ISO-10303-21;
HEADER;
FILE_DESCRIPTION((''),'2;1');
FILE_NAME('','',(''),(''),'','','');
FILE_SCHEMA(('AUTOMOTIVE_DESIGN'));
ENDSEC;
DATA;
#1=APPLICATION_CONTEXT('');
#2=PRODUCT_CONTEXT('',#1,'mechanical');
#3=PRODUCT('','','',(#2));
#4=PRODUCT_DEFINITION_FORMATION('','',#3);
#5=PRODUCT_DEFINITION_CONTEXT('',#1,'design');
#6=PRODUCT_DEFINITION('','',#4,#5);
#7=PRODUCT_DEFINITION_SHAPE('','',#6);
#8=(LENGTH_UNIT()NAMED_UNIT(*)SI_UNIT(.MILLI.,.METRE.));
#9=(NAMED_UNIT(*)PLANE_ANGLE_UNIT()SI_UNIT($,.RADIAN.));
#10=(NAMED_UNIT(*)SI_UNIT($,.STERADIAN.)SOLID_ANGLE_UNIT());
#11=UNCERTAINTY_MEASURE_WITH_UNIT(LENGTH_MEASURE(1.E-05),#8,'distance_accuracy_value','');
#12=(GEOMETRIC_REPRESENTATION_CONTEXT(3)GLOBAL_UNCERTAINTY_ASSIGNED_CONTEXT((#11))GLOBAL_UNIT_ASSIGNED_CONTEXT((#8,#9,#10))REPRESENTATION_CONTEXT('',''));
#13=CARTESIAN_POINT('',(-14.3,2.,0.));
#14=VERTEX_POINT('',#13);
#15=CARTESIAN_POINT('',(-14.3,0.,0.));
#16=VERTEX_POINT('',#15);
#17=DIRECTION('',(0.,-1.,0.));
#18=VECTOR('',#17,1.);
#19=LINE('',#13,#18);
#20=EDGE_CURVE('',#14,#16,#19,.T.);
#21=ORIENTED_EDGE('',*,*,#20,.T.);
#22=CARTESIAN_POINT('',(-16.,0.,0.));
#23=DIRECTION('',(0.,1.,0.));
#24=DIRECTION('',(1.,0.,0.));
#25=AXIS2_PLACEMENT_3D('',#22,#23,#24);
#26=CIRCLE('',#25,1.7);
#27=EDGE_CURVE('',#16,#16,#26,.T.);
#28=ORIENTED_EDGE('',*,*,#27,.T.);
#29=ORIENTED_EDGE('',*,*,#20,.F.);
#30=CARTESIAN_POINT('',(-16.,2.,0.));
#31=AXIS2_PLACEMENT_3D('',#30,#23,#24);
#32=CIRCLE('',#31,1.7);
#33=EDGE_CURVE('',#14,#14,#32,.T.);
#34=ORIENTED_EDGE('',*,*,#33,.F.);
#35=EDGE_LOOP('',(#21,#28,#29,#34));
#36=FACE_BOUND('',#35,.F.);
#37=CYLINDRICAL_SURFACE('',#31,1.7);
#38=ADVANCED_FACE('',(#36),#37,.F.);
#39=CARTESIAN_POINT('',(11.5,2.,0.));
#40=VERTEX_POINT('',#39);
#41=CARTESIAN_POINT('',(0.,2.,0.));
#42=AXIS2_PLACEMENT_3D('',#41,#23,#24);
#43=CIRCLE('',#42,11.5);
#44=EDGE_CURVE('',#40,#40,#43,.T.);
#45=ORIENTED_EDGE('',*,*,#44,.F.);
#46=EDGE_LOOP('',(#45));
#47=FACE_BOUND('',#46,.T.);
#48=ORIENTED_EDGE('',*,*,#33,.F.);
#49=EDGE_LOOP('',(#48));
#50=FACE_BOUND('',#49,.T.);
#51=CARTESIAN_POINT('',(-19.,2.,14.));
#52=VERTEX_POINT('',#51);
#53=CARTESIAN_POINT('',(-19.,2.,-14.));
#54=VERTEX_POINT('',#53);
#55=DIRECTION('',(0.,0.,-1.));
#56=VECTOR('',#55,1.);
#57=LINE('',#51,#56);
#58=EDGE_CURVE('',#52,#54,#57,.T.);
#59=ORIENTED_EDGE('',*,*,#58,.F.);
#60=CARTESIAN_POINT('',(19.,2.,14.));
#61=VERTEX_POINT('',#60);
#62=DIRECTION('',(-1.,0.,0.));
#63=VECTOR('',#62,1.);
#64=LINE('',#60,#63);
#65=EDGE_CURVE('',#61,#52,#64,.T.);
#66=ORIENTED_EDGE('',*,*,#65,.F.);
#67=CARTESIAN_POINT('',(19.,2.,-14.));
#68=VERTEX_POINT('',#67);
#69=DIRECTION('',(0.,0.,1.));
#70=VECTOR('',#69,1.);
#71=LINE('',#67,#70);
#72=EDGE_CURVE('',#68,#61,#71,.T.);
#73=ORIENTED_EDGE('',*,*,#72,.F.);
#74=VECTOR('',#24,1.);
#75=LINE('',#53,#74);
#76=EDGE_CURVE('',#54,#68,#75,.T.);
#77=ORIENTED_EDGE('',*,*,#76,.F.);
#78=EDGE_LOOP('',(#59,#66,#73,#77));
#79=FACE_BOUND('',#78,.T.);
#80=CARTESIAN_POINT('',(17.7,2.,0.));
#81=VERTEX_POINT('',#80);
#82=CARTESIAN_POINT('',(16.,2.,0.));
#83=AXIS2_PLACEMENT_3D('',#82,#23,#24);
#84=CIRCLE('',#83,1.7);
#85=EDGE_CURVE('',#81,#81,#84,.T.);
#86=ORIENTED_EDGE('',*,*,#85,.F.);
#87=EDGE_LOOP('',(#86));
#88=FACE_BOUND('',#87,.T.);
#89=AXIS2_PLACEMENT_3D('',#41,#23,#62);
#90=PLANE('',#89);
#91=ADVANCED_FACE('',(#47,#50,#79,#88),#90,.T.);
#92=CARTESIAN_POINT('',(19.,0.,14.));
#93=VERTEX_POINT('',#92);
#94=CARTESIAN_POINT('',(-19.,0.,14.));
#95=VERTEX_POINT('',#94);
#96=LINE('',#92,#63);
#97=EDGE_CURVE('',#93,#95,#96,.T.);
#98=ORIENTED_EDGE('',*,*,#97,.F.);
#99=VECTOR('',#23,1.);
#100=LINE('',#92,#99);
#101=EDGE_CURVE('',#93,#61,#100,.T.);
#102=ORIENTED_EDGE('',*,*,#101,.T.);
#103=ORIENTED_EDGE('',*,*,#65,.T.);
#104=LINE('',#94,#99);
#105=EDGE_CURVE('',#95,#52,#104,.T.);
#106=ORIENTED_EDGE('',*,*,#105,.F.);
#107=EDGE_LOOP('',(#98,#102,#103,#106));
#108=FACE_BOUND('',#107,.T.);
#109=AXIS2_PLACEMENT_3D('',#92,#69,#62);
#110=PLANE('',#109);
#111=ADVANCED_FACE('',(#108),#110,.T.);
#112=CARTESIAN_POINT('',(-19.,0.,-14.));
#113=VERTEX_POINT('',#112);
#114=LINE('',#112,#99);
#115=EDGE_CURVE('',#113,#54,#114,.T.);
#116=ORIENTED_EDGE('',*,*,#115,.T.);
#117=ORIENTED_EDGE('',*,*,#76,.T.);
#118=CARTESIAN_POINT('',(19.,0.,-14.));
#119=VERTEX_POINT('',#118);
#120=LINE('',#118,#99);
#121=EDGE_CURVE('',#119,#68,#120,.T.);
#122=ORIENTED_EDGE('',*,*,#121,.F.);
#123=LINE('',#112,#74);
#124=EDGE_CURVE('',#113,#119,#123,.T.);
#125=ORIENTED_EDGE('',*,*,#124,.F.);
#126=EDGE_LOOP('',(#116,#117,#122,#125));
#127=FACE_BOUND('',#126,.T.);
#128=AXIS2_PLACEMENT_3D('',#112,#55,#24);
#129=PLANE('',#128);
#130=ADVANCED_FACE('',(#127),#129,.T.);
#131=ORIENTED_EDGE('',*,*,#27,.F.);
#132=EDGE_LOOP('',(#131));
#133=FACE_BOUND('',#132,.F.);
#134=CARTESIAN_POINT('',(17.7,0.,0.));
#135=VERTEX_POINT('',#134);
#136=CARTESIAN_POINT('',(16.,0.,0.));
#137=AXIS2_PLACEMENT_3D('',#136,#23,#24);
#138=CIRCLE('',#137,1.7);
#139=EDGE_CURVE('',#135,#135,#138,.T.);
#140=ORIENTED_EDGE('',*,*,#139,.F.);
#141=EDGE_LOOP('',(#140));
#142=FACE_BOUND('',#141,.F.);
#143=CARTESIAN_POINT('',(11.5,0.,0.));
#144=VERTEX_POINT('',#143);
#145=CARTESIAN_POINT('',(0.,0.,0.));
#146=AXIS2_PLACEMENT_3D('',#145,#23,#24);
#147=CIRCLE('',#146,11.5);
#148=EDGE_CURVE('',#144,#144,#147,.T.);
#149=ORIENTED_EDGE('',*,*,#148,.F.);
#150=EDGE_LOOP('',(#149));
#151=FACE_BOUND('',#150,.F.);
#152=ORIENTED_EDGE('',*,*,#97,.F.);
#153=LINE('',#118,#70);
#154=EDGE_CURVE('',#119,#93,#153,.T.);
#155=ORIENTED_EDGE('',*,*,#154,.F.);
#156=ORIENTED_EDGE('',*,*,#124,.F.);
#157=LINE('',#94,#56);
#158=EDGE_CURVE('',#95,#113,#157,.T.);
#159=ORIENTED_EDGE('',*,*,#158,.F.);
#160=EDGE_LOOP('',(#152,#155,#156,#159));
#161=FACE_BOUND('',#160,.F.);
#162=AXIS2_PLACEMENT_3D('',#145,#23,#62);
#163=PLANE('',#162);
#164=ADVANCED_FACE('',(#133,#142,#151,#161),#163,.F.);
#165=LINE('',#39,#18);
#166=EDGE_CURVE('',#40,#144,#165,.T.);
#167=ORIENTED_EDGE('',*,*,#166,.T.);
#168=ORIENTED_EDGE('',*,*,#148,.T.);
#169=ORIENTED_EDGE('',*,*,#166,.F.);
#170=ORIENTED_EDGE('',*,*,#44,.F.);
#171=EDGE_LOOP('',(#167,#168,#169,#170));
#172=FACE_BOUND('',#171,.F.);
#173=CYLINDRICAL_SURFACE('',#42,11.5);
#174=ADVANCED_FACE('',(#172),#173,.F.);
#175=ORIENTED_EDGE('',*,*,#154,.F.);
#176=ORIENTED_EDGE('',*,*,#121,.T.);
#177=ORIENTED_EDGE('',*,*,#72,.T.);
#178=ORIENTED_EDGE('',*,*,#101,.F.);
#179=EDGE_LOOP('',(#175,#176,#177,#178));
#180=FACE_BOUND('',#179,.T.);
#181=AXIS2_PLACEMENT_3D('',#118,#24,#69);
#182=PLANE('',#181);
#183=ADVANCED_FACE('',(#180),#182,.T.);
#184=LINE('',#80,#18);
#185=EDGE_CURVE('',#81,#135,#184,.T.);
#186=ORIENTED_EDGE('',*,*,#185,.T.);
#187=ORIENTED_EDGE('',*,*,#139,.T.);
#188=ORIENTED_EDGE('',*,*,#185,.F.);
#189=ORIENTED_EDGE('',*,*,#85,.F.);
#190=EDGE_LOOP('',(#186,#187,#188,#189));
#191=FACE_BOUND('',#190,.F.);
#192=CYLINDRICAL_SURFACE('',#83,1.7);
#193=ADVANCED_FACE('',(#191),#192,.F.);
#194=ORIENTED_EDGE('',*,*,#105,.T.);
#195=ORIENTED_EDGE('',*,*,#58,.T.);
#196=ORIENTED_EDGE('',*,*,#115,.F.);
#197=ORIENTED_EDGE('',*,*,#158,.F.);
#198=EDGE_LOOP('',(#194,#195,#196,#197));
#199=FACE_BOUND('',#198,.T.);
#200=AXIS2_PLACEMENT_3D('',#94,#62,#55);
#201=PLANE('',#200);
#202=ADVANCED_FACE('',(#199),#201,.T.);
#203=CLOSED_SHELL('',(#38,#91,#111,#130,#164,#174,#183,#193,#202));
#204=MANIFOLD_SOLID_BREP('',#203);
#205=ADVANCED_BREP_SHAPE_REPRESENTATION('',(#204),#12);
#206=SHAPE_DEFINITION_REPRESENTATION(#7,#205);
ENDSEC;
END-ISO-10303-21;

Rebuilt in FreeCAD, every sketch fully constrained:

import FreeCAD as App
import Part
import Sketcher
Q = App.Units.Quantity


def add_polygon(sketch, points):
    """Adds a closed chain of lines whose ends are joined by coincident constraints."""
    first, n = sketch.GeometryCount, len(points)
    for a, b in zip(points, points[1:] + points[:1]):
        sketch.addGeometry(Part.LineSegment(App.Vector(*a, 0), App.Vector(*b, 0)), False)
    for i in range(n):
        sketch.addConstraint(Sketcher.Constraint("Coincident", first + i, 2, first + (i + 1) % n, 1))

doc = App.newDocument("Part")
body = doc.addObject("PartDesign::Body", "Body")

sketch1 = body.newObject("Sketcher::SketchObject", "Sketch")
sketch1.AttachmentSupport = (doc.getObject("XZ_Plane"), [""])
sketch1.MapMode = "FlatFace"
add_polygon(sketch1, [(19, -14), (-19, -14), (-19, 14), (19, 14)])
sketch1.addConstraint([
    Sketcher.Constraint("Horizontal", 0),
    Sketcher.Constraint("Vertical", 1),
    Sketcher.Constraint("Horizontal", 2),
    Sketcher.Constraint("Vertical", 3),
    Sketcher.Constraint("Symmetric", 0, 2, 2, 2, -1, 1),
    Sketcher.Constraint("DistanceX", 0, 2, 0, 1, Q("38 mm")),
    Sketcher.Constraint("DistanceY", 1, 1, 1, 2, Q("28 mm")),
])
pad1 = body.newObject("PartDesign::Pad", "Pad")
pad1.Profile = sketch1
pad1.Length = 2
pad1.Reversed = True

sketch2 = body.newObject("Sketcher::SketchObject", "Sketch001")
sketch2.AttachmentSupport = (doc.getObject("XZ_Plane"), [""])
sketch2.MapMode = "FlatFace"
sketch2.AttachmentOffset = App.Placement(App.Vector(0, 0, -2), App.Rotation())
sketch2.addGeometry([
    Part.Circle(App.Vector(0, 0, 0), App.Vector(0, 0, 1), 11.5),
    Part.Circle(App.Vector(-16, 0, 0), App.Vector(0, 0, 1), 1.7),
    Part.Circle(App.Vector(16, 0, 0), App.Vector(0, 0, 1), 1.7),
], False)
sketch2.addConstraint([
    Sketcher.Constraint("Coincident", 0, 3, -1, 1),
    Sketcher.Constraint("Equal", 1, 2),
    Sketcher.Constraint("Symmetric", 1, 3, 2, 3, -1, 1),
    Sketcher.Constraint("PointOnObject", 1, 3, -1),
    Sketcher.Constraint("Diameter", 0, Q("23 mm")),
    Sketcher.Constraint("Diameter", 1, Q("3.4 mm")),
    Sketcher.Constraint("DistanceX", 1, 3, -1, 1, Q("16 mm")),
])
pocket1 = body.newObject("PartDesign::Pocket", "Pocket")
pocket1.Profile = sketch2
pocket1.Type = "ThroughAll"
pocket1.Reversed = True

doc.recompute()
